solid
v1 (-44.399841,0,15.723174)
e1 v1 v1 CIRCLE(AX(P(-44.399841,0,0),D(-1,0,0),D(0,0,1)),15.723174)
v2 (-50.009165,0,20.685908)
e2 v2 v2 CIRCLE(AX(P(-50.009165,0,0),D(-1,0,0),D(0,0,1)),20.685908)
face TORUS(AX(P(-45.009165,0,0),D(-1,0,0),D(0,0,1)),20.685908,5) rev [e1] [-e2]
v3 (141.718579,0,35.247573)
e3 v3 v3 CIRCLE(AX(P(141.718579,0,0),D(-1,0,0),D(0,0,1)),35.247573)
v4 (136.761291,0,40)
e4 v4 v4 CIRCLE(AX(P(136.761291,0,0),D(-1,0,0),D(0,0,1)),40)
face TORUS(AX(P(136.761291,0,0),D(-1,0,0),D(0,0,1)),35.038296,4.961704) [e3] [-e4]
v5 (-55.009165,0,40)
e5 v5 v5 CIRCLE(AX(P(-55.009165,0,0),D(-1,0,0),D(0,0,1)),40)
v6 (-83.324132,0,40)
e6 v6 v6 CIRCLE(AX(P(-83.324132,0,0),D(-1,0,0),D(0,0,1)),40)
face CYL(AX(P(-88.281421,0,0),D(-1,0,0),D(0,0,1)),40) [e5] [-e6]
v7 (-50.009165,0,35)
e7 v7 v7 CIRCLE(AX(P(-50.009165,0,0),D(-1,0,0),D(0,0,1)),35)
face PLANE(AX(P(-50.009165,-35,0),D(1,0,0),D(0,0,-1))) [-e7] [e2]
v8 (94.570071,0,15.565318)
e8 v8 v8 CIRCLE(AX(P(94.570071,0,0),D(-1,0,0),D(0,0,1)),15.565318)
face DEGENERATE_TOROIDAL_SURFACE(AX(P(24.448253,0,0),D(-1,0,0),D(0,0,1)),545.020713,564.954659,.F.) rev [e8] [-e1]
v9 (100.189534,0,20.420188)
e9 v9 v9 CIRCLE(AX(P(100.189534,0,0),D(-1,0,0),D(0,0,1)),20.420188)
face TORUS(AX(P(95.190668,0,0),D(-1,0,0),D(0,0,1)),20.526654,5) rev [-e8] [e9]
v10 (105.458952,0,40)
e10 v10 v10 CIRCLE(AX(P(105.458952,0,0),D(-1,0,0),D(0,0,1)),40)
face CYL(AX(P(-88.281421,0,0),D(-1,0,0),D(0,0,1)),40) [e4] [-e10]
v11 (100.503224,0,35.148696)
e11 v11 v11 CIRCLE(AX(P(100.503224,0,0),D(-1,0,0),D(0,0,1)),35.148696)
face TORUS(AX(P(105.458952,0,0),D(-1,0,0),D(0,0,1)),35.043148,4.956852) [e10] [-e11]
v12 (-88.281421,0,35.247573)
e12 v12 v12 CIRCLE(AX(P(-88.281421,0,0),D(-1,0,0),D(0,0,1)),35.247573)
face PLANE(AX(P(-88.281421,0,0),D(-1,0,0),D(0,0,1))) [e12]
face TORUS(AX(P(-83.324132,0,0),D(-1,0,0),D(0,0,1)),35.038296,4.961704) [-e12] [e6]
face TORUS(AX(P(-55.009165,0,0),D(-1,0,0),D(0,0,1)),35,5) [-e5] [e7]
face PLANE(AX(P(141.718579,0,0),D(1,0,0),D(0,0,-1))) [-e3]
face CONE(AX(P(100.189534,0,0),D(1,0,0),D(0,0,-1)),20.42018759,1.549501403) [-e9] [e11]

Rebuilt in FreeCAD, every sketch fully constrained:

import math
import FreeCAD as App
import Part
import Sketcher
from FreeCAD import Vector
Q = App.Units.Quantity

doc = App.newDocument("Part")
body = doc.addObject("PartDesign::Body", "Body")

# Sketch on XY plane
sketch1 = body.newObject("Sketcher::SketchObject", "Sketch")
sketch1.AttachmentSupport = (doc.getObject("XY_Plane"), [""])
sketch1.MapMode = "FlatFace"
sketch1.addGeometry([
    Part.LineSegment(Vector(-88.3, 0, 0), Vector(-88.3, -35.2, 0)),  # 0
    Part.ArcOfCircle(Part.Circle(Vector(-83.3, -35, 0), Vector(0, 0, 1), 5), math.radians(-178), math.radians(-90)),  # 1
    Part.LineSegment(Vector(-83.3, -40, 0), Vector(-55, -40, 0)),  # 2
    Part.ArcOfCircle(Part.Circle(Vector(-55, -35, 0), Vector(0, 0, 1), 5), math.radians(-90), math.radians(0)),  # 3
    Part.LineSegment(Vector(-50, -35, 0), Vector(-50, -20.7, 0)),  # 4
    Part.ArcOfCircle(Part.Circle(Vector(-45, -20.7, 0), Vector(0, 0, 1), 5), math.radians(83), math.radians(180)),  # 5
    Part.ArcOfCircle(Part.Circle(Vector(24.4, 545, 0), Vector(0, 0, 1), 565), math.radians(-97), math.radians(-82.87)),  # 6
    Part.ArcOfCircle(Part.Circle(Vector(95.2, -20.5, 0), Vector(0, 0, 1), 5), math.radians(1), math.radians(97)),  # 7
    Part.LineSegment(Vector(100.2, -20.4, 0), Vector(100.5, -35.1, 0)),  # 8
    Part.ArcOfCircle(Part.Circle(Vector(105.5, -35, 0), Vector(0, 0, 1), 5), math.radians(-179), math.radians(-90)),  # 9
    Part.LineSegment(Vector(105.5, -40, 0), Vector(136.8, -40, 0)),  # 10
    Part.ArcOfCircle(Part.Circle(Vector(136.8, -35, 0), Vector(0, 0, 1), 5), math.radians(-90), math.radians(-2)),  # 11
    Part.LineSegment(Vector(141.7, -35.2, 0), Vector(141.7, 0, 0)),  # 12
    Part.LineSegment(Vector(141.7, 0, 0), Vector(-88.3, 0, 0)),  # 13
], False)
sketch1.addConstraint([
    Sketcher.Constraint("Coincident", 0, 2, 1, 1),
    Sketcher.Constraint("Tangent", 1, 2, 2, 1),
    Sketcher.Constraint("Tangent", 2, 2, 3, 1),
    Sketcher.Constraint("Tangent", 3, 2, 4, 1),
    Sketcher.Constraint("Tangent", 4, 2, 5, 2),
    Sketcher.Constraint("Tangent", 5, 1, 6, 1),
    Sketcher.Constraint("Tangent", 6, 2, 7, 2),
    Sketcher.Constraint("Tangent", 7, 1, 8, 1),
    Sketcher.Constraint("Tangent", 8, 2, 9, 1),
    Sketcher.Constraint("Tangent", 9, 2, 10, 1),
    Sketcher.Constraint("Tangent", 10, 2, 11, 1),
    Sketcher.Constraint("Coincident", 11, 2, 12, 1),
    Sketcher.Constraint("Coincident", 12, 2, 13, 1),
    Sketcher.Constraint("Coincident", 13, 2, 0, 1),
    Sketcher.Constraint("Vertical", 0),
    Sketcher.Constraint("Horizontal", 2),
    Sketcher.Constraint("Vertical", 4),
    Sketcher.Constraint("Horizontal", 10),
    Sketcher.Constraint("Vertical", 12),
    Sketcher.Constraint("Horizontal", 13),
    Sketcher.Constraint("Equal", 3, 5),
    Sketcher.Constraint("Equal", 5, 7),
    Sketcher.Constraint("Equal", 1, 11),
    Sketcher.Constraint("PointOnObject", 12, 2, -1),
    Sketcher.Constraint("Horizontal", 1, 3, 11, 3),
    Sketcher.Constraint("Horizontal", 0, 2, 11, 2),
    Sketcher.Constraint("Radius", 3, Q("5 mm")),
    Sketcher.Constraint("DistanceX", 13, 2, 13, 1, Q("230 mm")),
    Sketcher.Constraint("DistanceY", 3, 3, -1, 1, Q("35 mm")),
    Sketcher.Constraint("Radius", 6, Q("564.954659 mm")),
    Sketcher.Constraint("Radius", 9, Q("4.956852 mm")),
    Sketcher.Constraint("Radius", 1, Q("4.961704 mm")),
    Sketcher.Constraint("DistanceX", 10, 1, 10, 2, Q("31.302339 mm")),
    Sketcher.Constraint("DistanceX", 1, 3, 7, 3, Q("178.5148 mm")),
    Sketcher.Constraint("DistanceX", 6, 3, 9, 3, Q("81.010699 mm")),
    Sketcher.Constraint("DistanceY", 8, 2, 11, 3, Q("0.1104 mm")),
    Sketcher.Constraint("Distance", 8, Q("14.731849 mm")),
    Sketcher.Constraint("DistanceX", 2, 1, 2, 2, Q("28.314967 mm")),
    Sketcher.Constraint("DistanceX", -1, 1, 9, 3, Q("105.458952 mm")),
])
revolution = body.newObject("PartDesign::Revolution", "Revolution")
revolution.Profile = sketch1
revolution.ReferenceAxis = (sketch1, ["H_Axis"])
revolution.Angle = 360

doc.recompute()
